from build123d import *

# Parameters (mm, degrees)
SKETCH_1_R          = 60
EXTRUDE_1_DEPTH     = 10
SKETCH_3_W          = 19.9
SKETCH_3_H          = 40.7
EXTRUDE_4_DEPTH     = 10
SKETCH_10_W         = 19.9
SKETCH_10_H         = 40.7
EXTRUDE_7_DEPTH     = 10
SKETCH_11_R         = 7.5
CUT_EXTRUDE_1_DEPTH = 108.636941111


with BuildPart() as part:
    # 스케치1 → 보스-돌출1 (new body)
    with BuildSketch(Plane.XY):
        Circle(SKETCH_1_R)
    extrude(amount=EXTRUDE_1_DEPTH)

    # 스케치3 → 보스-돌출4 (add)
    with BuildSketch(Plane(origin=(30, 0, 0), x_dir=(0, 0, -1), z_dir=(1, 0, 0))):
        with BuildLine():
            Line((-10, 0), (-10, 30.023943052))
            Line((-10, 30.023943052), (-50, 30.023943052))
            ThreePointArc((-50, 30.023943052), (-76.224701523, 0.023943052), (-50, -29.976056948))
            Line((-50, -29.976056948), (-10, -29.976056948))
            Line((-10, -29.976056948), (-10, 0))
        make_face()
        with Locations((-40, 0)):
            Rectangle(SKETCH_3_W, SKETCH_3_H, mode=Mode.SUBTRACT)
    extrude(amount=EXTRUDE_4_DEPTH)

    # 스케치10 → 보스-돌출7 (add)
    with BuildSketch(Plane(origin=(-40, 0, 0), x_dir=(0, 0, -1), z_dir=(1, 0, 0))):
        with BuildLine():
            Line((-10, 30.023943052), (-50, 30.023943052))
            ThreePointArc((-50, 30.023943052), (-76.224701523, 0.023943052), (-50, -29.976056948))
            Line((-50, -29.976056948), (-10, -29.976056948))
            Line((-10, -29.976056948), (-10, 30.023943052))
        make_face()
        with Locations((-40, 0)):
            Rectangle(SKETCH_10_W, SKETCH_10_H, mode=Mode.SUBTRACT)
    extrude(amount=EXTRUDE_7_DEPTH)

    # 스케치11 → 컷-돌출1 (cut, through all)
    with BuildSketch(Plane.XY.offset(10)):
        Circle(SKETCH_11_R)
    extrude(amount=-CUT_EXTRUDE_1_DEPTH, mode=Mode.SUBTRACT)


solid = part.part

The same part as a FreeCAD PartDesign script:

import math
import FreeCAD as App
import Part
import Sketcher
from FreeCAD import Vector

doc = App.newDocument("Part")
body = doc.addObject("PartDesign::Body", "Body")

# Sketch on XY plane
sketch1 = body.newObject("Sketcher::SketchObject", "Sketch")
sketch1.AttachmentSupport = (doc.getObject("XY_Plane"), [""])
sketch1.MapMode = "FlatFace"
sketch1.addGeometry(Part.Circle(Vector(0, 0, 0), Vector(0, 0, 1), 60), False)
sketch1.addConstraint([
    Sketcher.Constraint("Coincident", 0, 3, -1, 1),
    Sketcher.Constraint("Diameter", 0, 120.0),
])
pad1 = body.newObject("PartDesign::Pad", "Pad")
pad1.Profile = sketch1
pad1.Length = 10

# Sketch on YZ plane
sketch2 = body.newObject("Sketcher::SketchObject", "Sketch001")
sketch2.AttachmentSupport = (doc.getObject("YZ_Plane"), [""])
sketch2.MapMode = "FlatFace"
sketch2.AttachmentOffset = App.Placement(Vector(0, 0, 30), App.Rotation())
sketch2.addGeometry([
    Part.LineSegment(Vector(30.023943, 10, 0), Vector(30.023943, 50, 0)),  # 0
    Part.ArcOfCircle(Part.Circle(Vector(0.023943, 45.952956, 0), Vector(0, 0, 1), 30.271745), math.radians(7.682903), math.radians(172.317097)),  # 1
    Part.LineSegment(Vector(-29.976057, 50, 0), Vector(-29.976057, 10, 0)),  # 2
    Part.LineSegment(Vector(-29.976057, 10, 0), Vector(30.023943, 10, 0)),  # 3
    Part.LineSegment(Vector(-20.35, 30.05, 0), Vector(-20.35, 49.95, 0)),  # 4
    Part.LineSegment(Vector(-20.35, 49.95, 0), Vector(20.35, 49.95, 0)),  # 5
    Part.LineSegment(Vector(20.35, 49.95, 0), Vector(20.35, 30.05, 0)),  # 6
    Part.LineSegment(Vector(20.35, 30.05, 0), Vector(-20.35, 30.05, 0)),  # 7
], False)
sketch2.addConstraint([
    Sketcher.Constraint("Coincident", 0, 2, 1, 1),
    Sketcher.Constraint("Coincident", 1, 2, 2, 1),
    Sketcher.Constraint("Coincident", 2, 2, 3, 1),
    Sketcher.Constraint("Coincident", 3, 2, 0, 1),
    Sketcher.Constraint("Coincident", 4, 2, 5, 1),
    Sketcher.Constraint("Coincident", 5, 2, 6, 1),
    Sketcher.Constraint("Coincident", 6, 2, 7, 1),
    Sketcher.Constraint("Coincident", 7, 2, 4, 1),
    Sketcher.Constraint("Vertical", 0),
    Sketcher.Constraint("Vertical", 2),
    Sketcher.Constraint("Horizontal", 3),
    Sketcher.Constraint("Vertical", 4),
    Sketcher.Constraint("Horizontal", 5),
    Sketcher.Constraint("Vertical", 6),
    Sketcher.Constraint("Horizontal", 7),
    Sketcher.Constraint("Horizontal", 0, 2, 1, 2),
    Sketcher.Constraint("DistanceX", 3, 1, 3, 2, 60.0),
    Sketcher.Constraint("DistanceY", 0, 1, 0, 2, 40.0),
    Sketcher.Constraint("DistanceX", 5, 1, 5, 2, 40.7),
    Sketcher.Constraint("DistanceY", 4, 1, 4, 2, 19.9),
    Sketcher.Constraint("DistanceY", -1, 1, 0, 2, 50.0),
    Sketcher.Constraint("DistanceX", 4, 2, -1, 1, 20.35),
    Sketcher.Constraint("DistanceY", -1, 1, 4, 2, 49.95),
    Sketcher.Constraint("Radius", 1, 30.271745),
    Sketcher.Constraint("DistanceX", -1, 1, 1, 3, 0.023943),
])
pad2 = body.newObject("PartDesign::Pad", "Pad001")
pad2.Profile = sketch2
pad2.Length = 10

# Sketch on YZ plane
sketch3 = body.newObject("Sketcher::SketchObject", "Sketch002")
sketch3.AttachmentSupport = (doc.getObject("YZ_Plane"), [""])
sketch3.MapMode = "FlatFace"
sketch3.AttachmentOffset = App.Placement(Vector(0, 0, -40), App.Rotation())
sketch3.addGeometry([
    Part.LineSegment(Vector(30.023943, 10, 0), Vector(30.023943, 50, 0)),  # 0
    Part.ArcOfCircle(Part.Circle(Vector(0.023943, 45.952956, 0), Vector(0, 0, 1), 30.271745), math.radians(7.682903), math.radians(172.317097)),  # 1
    Part.LineSegment(Vector(-29.976057, 50, 0), Vector(-29.976057, 10, 0)),  # 2
    Part.LineSegment(Vector(-29.976057, 10, 0), Vector(30.023943, 10, 0)),  # 3
    Part.LineSegment(Vector(-20.35, 30.05, 0), Vector(-20.35, 49.95, 0)),  # 4
    Part.LineSegment(Vector(-20.35, 49.95, 0), Vector(20.35, 49.95, 0)),  # 5
    Part.LineSegment(Vector(20.35, 49.95, 0), Vector(20.35, 30.05, 0)),  # 6
    Part.LineSegment(Vector(20.35, 30.05, 0), Vector(-20.35, 30.05, 0)),  # 7
], False)
sketch3.addConstraint([
    Sketcher.Constraint("Coincident", 0, 2, 1, 1),
    Sketcher.Constraint("Coincident", 1, 2, 2, 1),
    Sketcher.Constraint("Coincident", 2, 2, 3, 1),
    Sketcher.Constraint("Coincident", 3, 2, 0, 1),
    Sketcher.Constraint("Coincident", 4, 2, 5, 1),
    Sketcher.Constraint("Coincident", 5, 2, 6, 1),
    Sketcher.Constraint("Coincident", 6, 2, 7, 1),
    Sketcher.Constraint("Coincident", 7, 2, 4, 1),
    Sketcher.Constraint("Vertical", 0),
    Sketcher.Constraint("Vertical", 2),
    Sketcher.Constraint("Horizontal", 3),
    Sketcher.Constraint("Vertical", 4),
    Sketcher.Constraint("Horizontal", 5),
    Sketcher.Constraint("Vertical", 6),
    Sketcher.Constraint("Horizontal", 7),
    Sketcher.Constraint("Horizontal", 0, 2, 1, 2),
    Sketcher.Constraint("DistanceX", 3, 1, 3, 2, 60.0),
    Sketcher.Constraint("DistanceY", 0, 1, 0, 2, 40.0),
    Sketcher.Constraint("DistanceX", 5, 1, 5, 2, 40.7),
    Sketcher.Constraint("DistanceY", 4, 1, 4, 2, 19.9),
    Sketcher.Constraint("DistanceY", -1, 1, 0, 2, 50.0),
    Sketcher.Constraint("DistanceX", 4, 2, -1, 1, 20.35),
    Sketcher.Constraint("DistanceY", -1, 1, 4, 2, 49.95),
    Sketcher.Constraint("Radius", 1, 30.271745),
    Sketcher.Constraint("DistanceX", -1, 1, 1, 3, 0.023943),
])
pad3 = body.newObject("PartDesign::Pad", "Pad002")
pad3.Profile = sketch3
pad3.Length = 10

# Sketch on XY plane
sketch4 = body.newObject("Sketcher::SketchObject", "Sketch003")
sketch4.AttachmentSupport = (doc.getObject("XY_Plane"), [""])
sketch4.MapMode = "FlatFace"
sketch4.AttachmentOffset = App.Placement(Vector(0, 0, 10), App.Rotation())
sketch4.addGeometry(Part.Circle(Vector(0, 0, 0), Vector(0, 0, 1), 7.5), False)
sketch4.addConstraint([
    Sketcher.Constraint("Coincident", 0, 3, -1, 1),
    Sketcher.Constraint("Diameter", 0, 15.0),
])
pocket1 = body.newObject("PartDesign::Pocket", "Pocket")
pocket1.Profile = sketch4
pocket1.Type = "ThroughAll"

doc.recompute()
